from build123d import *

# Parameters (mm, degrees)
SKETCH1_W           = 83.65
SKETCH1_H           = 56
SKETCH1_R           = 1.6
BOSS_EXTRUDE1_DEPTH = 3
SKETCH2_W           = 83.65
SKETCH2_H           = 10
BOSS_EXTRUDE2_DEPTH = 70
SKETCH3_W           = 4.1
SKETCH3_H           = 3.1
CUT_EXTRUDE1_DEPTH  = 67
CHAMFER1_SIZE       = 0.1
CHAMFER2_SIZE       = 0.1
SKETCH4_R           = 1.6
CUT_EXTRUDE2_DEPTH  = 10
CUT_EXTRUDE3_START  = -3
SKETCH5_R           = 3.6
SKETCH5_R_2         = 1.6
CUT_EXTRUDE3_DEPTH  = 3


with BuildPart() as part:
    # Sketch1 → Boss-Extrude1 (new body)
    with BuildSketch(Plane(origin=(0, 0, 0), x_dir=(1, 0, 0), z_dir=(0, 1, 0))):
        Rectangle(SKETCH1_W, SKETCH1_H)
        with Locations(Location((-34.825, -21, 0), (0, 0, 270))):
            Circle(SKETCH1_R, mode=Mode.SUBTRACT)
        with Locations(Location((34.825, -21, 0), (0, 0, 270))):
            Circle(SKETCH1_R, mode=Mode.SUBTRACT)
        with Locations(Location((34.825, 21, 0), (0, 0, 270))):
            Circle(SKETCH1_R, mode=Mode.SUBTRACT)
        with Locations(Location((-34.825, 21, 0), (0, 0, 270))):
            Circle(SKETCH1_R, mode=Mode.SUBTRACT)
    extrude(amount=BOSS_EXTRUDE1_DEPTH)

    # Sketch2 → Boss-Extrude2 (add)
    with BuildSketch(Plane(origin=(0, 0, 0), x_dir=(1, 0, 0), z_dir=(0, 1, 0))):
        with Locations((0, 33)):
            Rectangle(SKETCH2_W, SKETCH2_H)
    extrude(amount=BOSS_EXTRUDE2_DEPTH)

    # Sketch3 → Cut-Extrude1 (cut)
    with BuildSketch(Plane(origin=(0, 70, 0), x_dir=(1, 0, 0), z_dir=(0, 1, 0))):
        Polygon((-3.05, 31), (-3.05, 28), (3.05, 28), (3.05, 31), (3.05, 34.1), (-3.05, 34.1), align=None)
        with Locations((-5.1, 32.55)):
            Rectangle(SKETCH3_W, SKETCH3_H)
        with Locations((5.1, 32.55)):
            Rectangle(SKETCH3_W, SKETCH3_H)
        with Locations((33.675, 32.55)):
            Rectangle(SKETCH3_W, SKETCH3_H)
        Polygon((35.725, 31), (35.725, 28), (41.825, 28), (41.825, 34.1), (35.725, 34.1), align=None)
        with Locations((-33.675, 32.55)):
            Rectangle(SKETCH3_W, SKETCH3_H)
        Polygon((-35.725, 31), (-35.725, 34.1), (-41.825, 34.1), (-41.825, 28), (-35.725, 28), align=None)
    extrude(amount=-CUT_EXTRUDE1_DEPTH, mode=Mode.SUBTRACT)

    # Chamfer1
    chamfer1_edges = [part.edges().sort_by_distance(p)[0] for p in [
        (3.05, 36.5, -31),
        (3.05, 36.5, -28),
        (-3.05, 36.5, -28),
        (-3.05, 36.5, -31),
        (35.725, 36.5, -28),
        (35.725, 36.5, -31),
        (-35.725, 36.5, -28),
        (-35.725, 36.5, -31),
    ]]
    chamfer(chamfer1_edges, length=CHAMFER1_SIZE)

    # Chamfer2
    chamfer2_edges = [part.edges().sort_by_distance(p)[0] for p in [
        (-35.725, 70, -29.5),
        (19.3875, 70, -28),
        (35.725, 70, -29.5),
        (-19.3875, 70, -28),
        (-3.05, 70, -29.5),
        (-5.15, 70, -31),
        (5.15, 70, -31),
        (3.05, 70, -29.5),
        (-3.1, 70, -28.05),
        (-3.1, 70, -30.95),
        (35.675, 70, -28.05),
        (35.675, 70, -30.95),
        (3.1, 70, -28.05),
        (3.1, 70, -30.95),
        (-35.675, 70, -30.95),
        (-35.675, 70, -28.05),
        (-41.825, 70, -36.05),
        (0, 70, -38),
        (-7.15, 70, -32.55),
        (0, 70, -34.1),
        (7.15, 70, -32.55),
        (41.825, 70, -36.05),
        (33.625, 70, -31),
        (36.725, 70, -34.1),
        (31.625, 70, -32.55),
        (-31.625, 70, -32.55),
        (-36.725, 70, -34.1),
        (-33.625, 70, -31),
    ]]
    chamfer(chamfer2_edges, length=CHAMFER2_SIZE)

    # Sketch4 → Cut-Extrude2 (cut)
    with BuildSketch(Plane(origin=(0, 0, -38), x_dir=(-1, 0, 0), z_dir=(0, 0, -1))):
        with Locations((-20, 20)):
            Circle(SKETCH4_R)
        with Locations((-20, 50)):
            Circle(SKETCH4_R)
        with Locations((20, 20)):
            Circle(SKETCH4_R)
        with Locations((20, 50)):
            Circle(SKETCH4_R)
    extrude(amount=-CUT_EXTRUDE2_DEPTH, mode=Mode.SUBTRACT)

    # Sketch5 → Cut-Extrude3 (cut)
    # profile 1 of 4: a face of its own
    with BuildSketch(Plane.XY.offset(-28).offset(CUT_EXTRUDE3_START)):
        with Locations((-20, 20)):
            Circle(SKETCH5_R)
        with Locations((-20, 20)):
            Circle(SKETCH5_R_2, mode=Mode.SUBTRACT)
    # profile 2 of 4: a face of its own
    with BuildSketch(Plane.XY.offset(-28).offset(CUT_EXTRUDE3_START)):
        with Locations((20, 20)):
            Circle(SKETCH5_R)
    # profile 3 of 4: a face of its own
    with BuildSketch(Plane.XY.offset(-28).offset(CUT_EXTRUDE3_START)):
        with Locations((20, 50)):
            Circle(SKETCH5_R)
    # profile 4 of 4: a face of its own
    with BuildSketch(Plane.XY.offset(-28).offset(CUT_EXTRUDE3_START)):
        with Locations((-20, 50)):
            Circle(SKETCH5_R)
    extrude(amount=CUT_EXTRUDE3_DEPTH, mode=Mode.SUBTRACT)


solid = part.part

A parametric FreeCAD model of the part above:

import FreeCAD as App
import Part
import Sketcher
from FreeCAD import Vector


def edges_at(feature, points):
    """Names of the edges that pass closest to the given points."""
    edges = feature.Shape.Edges
    near = lambda p: min(range(len(edges)), key=lambda i: edges[i].distToShape(Part.Vertex(*p))[0])
    return sorted({f"Edge{near(p) + 1}" for p in points})


def add_polygon(sketch, points):
    """Adds a closed chain of lines whose ends are joined by coincident constraints."""
    first, n = sketch.GeometryCount, len(points)
    for a, b in zip(points, points[1:] + points[:1]):
        sketch.addGeometry(Part.LineSegment(App.Vector(*a, 0), App.Vector(*b, 0)), False)
    for i in range(n):
        sketch.addConstraint(Sketcher.Constraint("Coincident", first + i, 2, first + (i + 1) % n, 1))

doc = App.newDocument("Part")
body = doc.addObject("PartDesign::Body", "Body")

sketch1 = doc.addObject("Sketcher::SketchObject", "Sketch")
body.addObject(sketch1)
sketch1.AttachmentSupport = (doc.XZ_Plane, [""])
sketch1.MapMode = "FlatFace"
add_polygon(sketch1, [(-41.8, -28), (-41.8, 28), (41.8, 28), (41.8, -28)])
sketch1.addGeometry(Part.Circle(Vector(-34.8, 21, 0), Vector(0, 0, 1), 1.6), False)
sketch1.addGeometry(Part.Circle(Vector(34.8, 21, 0), Vector(0, 0, 1), 1.6), False)
sketch1.addGeometry(Part.Circle(Vector(-34.8, -21, 0), Vector(0, 0, 1), 1.6), False)
sketch1.addGeometry(Part.Circle(Vector(34.8, -21, 0), Vector(0, 0, 1), 1.6), False)
sketch1.addConstraint(Sketcher.Constraint("Vertical", 0))
sketch1.addConstraint(Sketcher.Constraint("Horizontal", 1))
sketch1.addConstraint(Sketcher.Constraint("Vertical", 2))
sketch1.addConstraint(Sketcher.Constraint("Horizontal", 3))
sketch1.addConstraint(Sketcher.Constraint("Equal", 4, 5))
sketch1.addConstraint(Sketcher.Constraint("Equal", 5, 6))
sketch1.addConstraint(Sketcher.Constraint("Equal", 6, 7))
sketch1.addConstraint(Sketcher.Constraint("Symmetric", 5, 3, 6, 3, -1, 1))
sketch1.addConstraint(Sketcher.Constraint("Symmetric", 4, 3, 7, 3, -1, 1))
sketch1.addConstraint(Sketcher.Constraint("Symmetric", 0, 2, 2, 2, -1, 1))
sketch1.addConstraint(Sketcher.Constraint("Symmetric", 4, 3, 5, 3, -2))
sketch1.addConstraint(Sketcher.Constraint("Diameter", 4, 3.2))
sketch1.addConstraint(Sketcher.Constraint("DistanceY", 0, 1, 0, 2, 56.0))
sketch1.addConstraint(Sketcher.Constraint("DistanceY", -1, 1, 4, 3, 21.0))
sketch1.addConstraint(Sketcher.Constraint("DistanceX", 0, 2, 4, 3, 7.0))
sketch1.addConstraint(Sketcher.Constraint("DistanceX", 1, 1, 1, 2, 83.65))
pad1 = doc.addObject("PartDesign::Pad", "Pad")
body.addObject(pad1)
pad1.Profile = sketch1
pad1.Length = 3
pad1.Reversed = True

sketch2 = doc.addObject("Sketcher::SketchObject", "Sketch001")
body.addObject(sketch2)
sketch2.AttachmentSupport = (doc.XZ_Plane, [""])
sketch2.MapMode = "FlatFace"
add_polygon(sketch2, [(-42, -38), (-42, -28), (42, -28), (42, -38)])
sketch2.addConstraint(Sketcher.Constraint("Vertical", 0))
sketch2.addConstraint(Sketcher.Constraint("Horizontal", 1))
sketch2.addConstraint(Sketcher.Constraint("Vertical", 2))
sketch2.addConstraint(Sketcher.Constraint("Horizontal", 3))
sketch2.addConstraint(Sketcher.Constraint("DistanceY", 0, 1, 0, 2, 10.0))
sketch2.addConstraint(Sketcher.Constraint("DistanceY", 0, 2, -1, 1, 28.0))
sketch2.addConstraint(Sketcher.Constraint("DistanceX", 1, 1, 1, 2, 83.65))
sketch2.addConstraint(Sketcher.Constraint("DistanceX", 0, 2, -1, 1, 41.825))
pad2 = doc.addObject("PartDesign::Pad", "Pad001")
body.addObject(pad2)
pad2.Profile = sketch2
pad2.Length = 70
pad2.Reversed = True

sketch3 = doc.addObject("Sketcher::SketchObject", "Sketch002")
body.addObject(sketch3)
sketch3.AttachmentSupport = (doc.XZ_Plane, [""])
sketch3.MapMode = "FlatFace"
sketch3.AttachmentOffset = App.Placement(Vector(0, 0, -70), App.Rotation())
add_polygon(sketch3, [(-3, -28), (3, -28), (3, -31), (7.2, -31), (7.2, -34.1), (-7.2, -34.1), (-7.2, -31), (-3, -31)])
add_polygon(sketch3, [(31.6, -34.1), (31.6, -31), (35.7, -31), (35.7, -28), (41.8, -28), (41.8, -34.1)])
add_polygon(sketch3, [(-35.7, -31), (-31.6, -31), (-31.6, -34.1), (-41.8, -34.1), (-41.8, -28), (-35.7, -28)])
sketch3.addConstraint(Sketcher.Constraint("Horizontal", 0))
sketch3.addConstraint(Sketcher.Constraint("Vertical", 1))
sketch3.addConstraint(Sketcher.Constraint("Horizontal", 2))
sketch3.addConstraint(Sketcher.Constraint("Vertical", 3))
sketch3.addConstraint(Sketcher.Constraint("Horizontal", 4))
sketch3.addConstraint(Sketcher.Constraint("Vertical", 5))
sketch3.addConstraint(Sketcher.Constraint("Horizontal", 6))
sketch3.addConstraint(Sketcher.Constraint("Vertical", 7))
sketch3.addConstraint(Sketcher.Constraint("Vertical", 8))
sketch3.addConstraint(Sketcher.Constraint("Horizontal", 9))
sketch3.addConstraint(Sketcher.Constraint("Vertical", 10))
sketch3.addConstraint(Sketcher.Constraint("Horizontal", 11))
sketch3.addConstraint(Sketcher.Constraint("Vertical", 12))
sketch3.addConstraint(Sketcher.Constraint("Horizontal", 13))
sketch3.addConstraint(Sketcher.Constraint("Horizontal", 14))
sketch3.addConstraint(Sketcher.Constraint("Vertical", 15))
sketch3.addConstraint(Sketcher.Constraint("Horizontal", 16))
sketch3.addConstraint(Sketcher.Constraint("Vertical", 17))
sketch3.addConstraint(Sketcher.Constraint("Horizontal", 18))
sketch3.addConstraint(Sketcher.Constraint("Vertical", 19))
sketch3.addConstraint(Sketcher.Constraint("Symmetric", 2, 2, 5, 2, -2))
sketch3.addConstraint(Sketcher.Constraint("Symmetric", 8, 2, 14, 2, -2))
sketch3.addConstraint(Sketcher.Constraint("Symmetric", 12, 2, 16, 2, -2))
sketch3.addConstraint(Sketcher.Constraint("Symmetric", 10, 2, 18, 2, -2))
sketch3.addConstraint(Sketcher.Constraint("Horizontal", 6, 2, 8, 2))
sketch3.addConstraint(Sketcher.Constraint("Horizontal", 7, 2, 10, 2))
sketch3.addConstraint(Sketcher.Constraint("Horizontal", 4, 2, 12, 2))
sketch3.addConstraint(Sketcher.Constraint("Equal", 2, 6))
sketch3.addConstraint(Sketcher.Constraint("Equal", 6, 9))
sketch3.addConstraint(Sketcher.Constraint("Equal", 0, 11))
sketch3.addConstraint(Sketcher.Constraint("Equal", 18, 12))
sketch3.addConstraint(Sketcher.Constraint("DistanceY", 1, 2, 1, 1, 3.0))
sketch3.addConstraint(Sketcher.Constraint("DistanceX", 0, 1, 0, 2, 6.1))
sketch3.addConstraint(Sketcher.Constraint("DistanceX", 2, 1, 2, 2, 4.1))
sketch3.addConstraint(Sketcher.Constraint("DistanceY", 0, 2, -1, 1, 28.0))
sketch3.addConstraint(Sketcher.Constraint("DistanceX", -1, 1, 8, 2, 31.625))
pocket1 = doc.addObject("PartDesign::Pocket", "Pocket")
body.addObject(pocket1)
pocket1.Profile = sketch3
pocket1.Length = 67
pocket1.Reversed = True
doc.recompute()

chamfer = doc.addObject("PartDesign::Chamfer", "Chamfer")
body.addObject(chamfer)
chamfer.Base = (pocket1, edges_at(pocket1, [
    (3.05, 36.5, -31),
    (3.05, 36.5, -28),
    (-3.05, 36.5, -28),
    (-3.05, 36.5, -31),
    (35.725, 36.5, -28),
    (35.725, 36.5, -31),
    (-35.725, 36.5, -28),
    (-35.725, 36.5, -31),
]))
chamfer.Size = 0.1
doc.recompute()

chamfer2 = doc.addObject("PartDesign::Chamfer", "Chamfer001")
body.addObject(chamfer2)
chamfer2.Base = (chamfer, edges_at(chamfer, [
    (-35.725, 70, -29.5),
    (19.387, 70, -28),
    (35.725, 70, -29.5),
    (-19.387, 70, -28),
    (-3.05, 70, -29.5),
    (-5.15, 70, -31),
    (5.15, 70, -31),
    (3.05, 70, -29.5),
    (-3.1, 70, -28.05),
    (-3.1, 70, -30.95),
    (35.675, 70, -28.05),
    (35.675, 70, -30.95),
    (3.1, 70, -28.05),
    (3.1, 70, -30.95),
    (-35.675, 70, -30.95),
    (-35.675, 70, -28.05),
    (-41.825, 70, -36.05),
    (0, 70, -38),
    (-7.15, 70, -32.55),
    (0, 70, -34.1),
    (7.15, 70, -32.55),
    (41.825, 70, -36.05),
    (33.625, 70, -31),
    (36.725, 70, -34.1),
    (31.625, 70, -32.55),
    (-31.625, 70, -32.55),
    (-36.725, 70, -34.1),
    (-33.625, 70, -31),
]))
chamfer2.Size = 0.1

sketch4 = doc.addObject("Sketcher::SketchObject", "Sketch003")
body.addObject(sketch4)
sketch4.AttachmentSupport = (doc.XY_Plane, [""])
sketch4.MapMode = "FlatFace"
sketch4.AttachmentOffset = App.Placement(Vector(0, 0, -38), App.Rotation())
sketch4.addGeometry(Part.Circle(Vector(20, 20, 0), Vector(0, 0, 1), 1.6), False)
sketch4.addGeometry(Part.Circle(Vector(20, 50, 0), Vector(0, 0, 1), 1.6), False)
sketch4.addGeometry(Part.Circle(Vector(-20, 20, 0), Vector(0, 0, 1), 1.6), False)
sketch4.addGeometry(Part.Circle(Vector(-20, 50, 0), Vector(0, 0, 1), 1.6), False)
sketch4.addConstraint(Sketcher.Constraint("Equal", 0, 1))
sketch4.addConstraint(Sketcher.Constraint("Equal", 1, 2))
sketch4.addConstraint(Sketcher.Constraint("Equal", 2, 3))
sketch4.addConstraint(Sketcher.Constraint("Symmetric", 0, 3, 2, 3, -2))
sketch4.addConstraint(Sketcher.Constraint("Symmetric", 1, 3, 3, 3, -2))
sketch4.addConstraint(Sketcher.Constraint("Vertical", 0, 3, 1, 3))
sketch4.addConstraint(Sketcher.Constraint("Diameter", 0, 3.2))
sketch4.addConstraint(Sketcher.Constraint("DistanceX", -1, 1, 0, 3, 20.0))
sketch4.addConstraint(Sketcher.Constraint("DistanceY", -1, 1, 0, 3, 20.0))
sketch4.addConstraint(Sketcher.Constraint("DistanceY", -1, 1, 1, 3, 50.0))
pocket2 = doc.addObject("PartDesign::Pocket", "Pocket001")
body.addObject(pocket2)
pocket2.Profile = sketch4
pocket2.Length = 10
pocket2.Reversed = True

sketch5 = doc.addObject("Sketcher::SketchObject", "Sketch004")
body.addObject(sketch5)
sketch5.AttachmentSupport = (doc.XY_Plane, [""])
sketch5.MapMode = "FlatFace"
sketch5.AttachmentOffset = App.Placement(Vector(0, 0, -31), App.Rotation())
sketch5.addGeometry(Part.Circle(Vector(-20, 20, 0), Vector(0, 0, 1), 3.6), False)
sketch5.addGeometry(Part.Circle(Vector(-20, 20, 0), Vector(0, 0, 1), 1.6), False)
sketch5.addGeometry(Part.Circle(Vector(20, 20, 0), Vector(0, 0, 1), 3.6), False)
sketch5.addGeometry(Part.Circle(Vector(20, 50, 0), Vector(0, 0, 1), 3.6), False)
sketch5.addGeometry(Part.Circle(Vector(-20, 50, 0), Vector(0, 0, 1), 3.6), False)
sketch5.addConstraint(Sketcher.Constraint("Coincident", 1, 3, 0, 3))
sketch5.addConstraint(Sketcher.Constraint("Equal", 0, 2))
sketch5.addConstraint(Sketcher.Constraint("Equal", 2, 3))
sketch5.addConstraint(Sketcher.Constraint("Equal", 3, 4))
sketch5.addConstraint(Sketcher.Constraint("Symmetric", 0, 3, 2, 3, -2))
sketch5.addConstraint(Sketcher.Constraint("Symmetric", 3, 3, 4, 3, -2))
sketch5.addConstraint(Sketcher.Constraint("Vertical", 2, 3, 3, 3))
sketch5.addConstraint(Sketcher.Constraint("Diameter", 0, 7.2))
sketch5.addConstraint(Sketcher.Constraint("Diameter", 1, 3.2))
sketch5.addConstraint(Sketcher.Constraint("DistanceX", 0, 3, -1, 1, 20.0))
sketch5.addConstraint(Sketcher.Constraint("DistanceY", -1, 1, 0, 3, 20.0))
sketch5.addConstraint(Sketcher.Constraint("DistanceY", -1, 1, 3, 3, 50.0))
pocket3 = doc.addObject("PartDesign::Pocket", "Pocket002")
body.addObject(pocket3)
pocket3.Profile = sketch5
pocket3.Length = 3
pocket3.Reversed = True

doc.recompute()
